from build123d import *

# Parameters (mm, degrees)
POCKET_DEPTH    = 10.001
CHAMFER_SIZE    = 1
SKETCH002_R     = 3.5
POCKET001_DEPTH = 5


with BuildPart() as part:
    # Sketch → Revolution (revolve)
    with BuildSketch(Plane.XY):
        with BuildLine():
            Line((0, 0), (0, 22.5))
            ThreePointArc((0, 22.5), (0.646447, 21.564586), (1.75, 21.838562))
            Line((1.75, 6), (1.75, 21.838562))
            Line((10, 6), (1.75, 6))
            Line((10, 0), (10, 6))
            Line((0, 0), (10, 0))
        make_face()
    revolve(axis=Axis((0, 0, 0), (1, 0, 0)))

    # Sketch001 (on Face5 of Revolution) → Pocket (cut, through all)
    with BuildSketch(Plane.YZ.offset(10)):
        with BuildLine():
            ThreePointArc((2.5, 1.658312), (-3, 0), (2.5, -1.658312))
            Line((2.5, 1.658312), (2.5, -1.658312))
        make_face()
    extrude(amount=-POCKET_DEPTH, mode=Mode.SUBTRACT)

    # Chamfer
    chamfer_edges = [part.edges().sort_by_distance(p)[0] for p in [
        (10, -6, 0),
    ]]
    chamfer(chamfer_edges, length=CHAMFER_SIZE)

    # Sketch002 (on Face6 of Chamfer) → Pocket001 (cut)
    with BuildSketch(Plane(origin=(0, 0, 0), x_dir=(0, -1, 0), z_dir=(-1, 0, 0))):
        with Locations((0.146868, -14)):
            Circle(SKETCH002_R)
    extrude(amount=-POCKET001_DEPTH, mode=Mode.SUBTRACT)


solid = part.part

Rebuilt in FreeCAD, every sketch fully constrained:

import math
import FreeCAD as App
import Part
import Sketcher
from FreeCAD import Vector
Q = App.Units.Quantity


def edges_at(feature, points):
    """Names of the edges that pass closest to the given points."""
    edges = feature.Shape.Edges
    near = lambda p: min(range(len(edges)), key=lambda i: edges[i].distToShape(Part.Vertex(*p))[0])
    return sorted({f"Edge{near(p) + 1}" for p in points})

doc = App.newDocument("Part")
body = doc.addObject("PartDesign::Body", "Body")

# Sketch on XY plane
sketch1 = body.newObject("Sketcher::SketchObject", "Sketch")
sketch1.AttachmentSupport = (doc.getObject("XY_Plane"), [""])
sketch1.MapMode = "FlatFace"
sketch1.addGeometry(Part.LineSegment(Vector(0, 22.5, 0), Vector(0, 0, 0)), False)
sketch1.addGeometry(Part.LineSegment(Vector(0, 0, 0), Vector(10, 0, 0)), False)
sketch1.addGeometry(Part.LineSegment(Vector(10, 0, 0), Vector(10, 6, 0)), False)
sketch1.addGeometry(Part.LineSegment(Vector(10, 6, 0), Vector(1.8, 6, 0)), False)
sketch1.addGeometry(Part.LineSegment(Vector(1.8, 6, 0), Vector(1.8, 21.8, 0)), False)
sketch1.addGeometry(Part.ArcOfCircle(Part.Circle(Vector(1, 22.5, 0), Vector(0, 0, 1), 1), math.radians(-180), math.radians(-41)), False)
sketch1.addConstraint(Sketcher.Constraint("Coincident", 0, 2, 1, 1))
sketch1.addConstraint(Sketcher.Constraint("Coincident", 1, 2, 2, 1))
sketch1.addConstraint(Sketcher.Constraint("Coincident", 2, 2, 3, 1))
sketch1.addConstraint(Sketcher.Constraint("Coincident", 3, 2, 4, 1))
sketch1.addConstraint(Sketcher.Constraint("Coincident", 4, 2, 5, 2))
sketch1.addConstraint(Sketcher.Constraint("Tangent", 5, 1, 0, 1))
sketch1.addConstraint(Sketcher.Constraint("Vertical", 0))
sketch1.addConstraint(Sketcher.Constraint("Horizontal", 1))
sketch1.addConstraint(Sketcher.Constraint("Vertical", 2))
sketch1.addConstraint(Sketcher.Constraint("Horizontal", 3))
sketch1.addConstraint(Sketcher.Constraint("Vertical", 4))
sketch1.addConstraint(Sketcher.Constraint("Coincident", 0, 2, -1, 1))
sketch1.addConstraint(Sketcher.Constraint("Radius", 5, Q("1 mm")))
sketch1.addConstraint(Sketcher.Constraint("DistanceX", 1, 1, 1, 2, Q("10 mm")))
sketch1.addConstraint(Sketcher.Constraint("DistanceY", 2, 1, 2, 2, Q("6 mm")))
sketch1.addConstraint(Sketcher.Constraint("DistanceY", 0, 2, 0, 1, Q("22.5 mm")))
sketch1.addConstraint(Sketcher.Constraint("DistanceX", 3, 2, 3, 1, Q("8.25 mm")))
revolution = body.newObject("PartDesign::Revolution", "Revolution")
revolution.Profile = sketch1
revolution.ReferenceAxis = (sketch1, ["H_Axis"])
revolution.Angle = 360

# Sketch on YZ plane
sketch2 = body.newObject("Sketcher::SketchObject", "Sketch001")
sketch2.AttachmentSupport = (doc.getObject("YZ_Plane"), [""])
sketch2.MapMode = "FlatFace"
sketch2.AttachmentOffset = App.Placement(Vector(0, 0, 10), App.Rotation())
sketch2.addGeometry(Part.ArcOfCircle(Part.Circle(Vector(0, 0, 0), Vector(0, 0, 1), 3), math.radians(34), math.radians(326)), False)
sketch2.addGeometry(Part.LineSegment(Vector(2.5, -1.7, 0), Vector(2.5, 1.7, 0)), False)
sketch2.addConstraint(Sketcher.Constraint("Coincident", 0, 1, 1, 2))
sketch2.addConstraint(Sketcher.Constraint("Coincident", 1, 1, 0, 2))
sketch2.addConstraint(Sketcher.Constraint("Vertical", 1))
sketch2.addConstraint(Sketcher.Constraint("Coincident", 0, 3, -1, 1))
sketch2.addConstraint(Sketcher.Constraint("Radius", 0, Q("3 mm")))
sketch2.addConstraint(Sketcher.Constraint("DistanceX", -1, 1, 0, 1, Q("2.5 mm")))
pocket1 = body.newObject("PartDesign::Pocket", "Pocket")
pocket1.Profile = sketch2
pocket1.Type = "ThroughAll"
doc.recompute()

chamfer = body.newObject("PartDesign::Chamfer", "Chamfer")
chamfer.Base = (pocket1, edges_at(pocket1, [(10, -6, 0)]))
chamfer.Size = 1

# Sketch on YZ plane
sketch3 = body.newObject("Sketcher::SketchObject", "Sketch002")
sketch3.AttachmentSupport = (doc.getObject("YZ_Plane"), [""])
sketch3.MapMode = "FlatFace"
sketch3.addGeometry(Part.Circle(Vector(-0.1, -14, 0), Vector(0, 0, 1), 3.5), False)
sketch3.addConstraint(Sketcher.Constraint("Diameter", 0, Q("7 mm")))
sketch3.addConstraint(Sketcher.Constraint("DistanceY", 0, 3, -1, 1, Q("14 mm")))
sketch3.addConstraint(Sketcher.Constraint("DistanceX", 0, 3, -1, 1, Q("0.146868 mm")))
pocket2 = body.newObject("PartDesign::Pocket", "Pocket001")
pocket2.Profile = sketch3
pocket2.Length = 5
pocket2.Reversed = True

doc.recompute()
